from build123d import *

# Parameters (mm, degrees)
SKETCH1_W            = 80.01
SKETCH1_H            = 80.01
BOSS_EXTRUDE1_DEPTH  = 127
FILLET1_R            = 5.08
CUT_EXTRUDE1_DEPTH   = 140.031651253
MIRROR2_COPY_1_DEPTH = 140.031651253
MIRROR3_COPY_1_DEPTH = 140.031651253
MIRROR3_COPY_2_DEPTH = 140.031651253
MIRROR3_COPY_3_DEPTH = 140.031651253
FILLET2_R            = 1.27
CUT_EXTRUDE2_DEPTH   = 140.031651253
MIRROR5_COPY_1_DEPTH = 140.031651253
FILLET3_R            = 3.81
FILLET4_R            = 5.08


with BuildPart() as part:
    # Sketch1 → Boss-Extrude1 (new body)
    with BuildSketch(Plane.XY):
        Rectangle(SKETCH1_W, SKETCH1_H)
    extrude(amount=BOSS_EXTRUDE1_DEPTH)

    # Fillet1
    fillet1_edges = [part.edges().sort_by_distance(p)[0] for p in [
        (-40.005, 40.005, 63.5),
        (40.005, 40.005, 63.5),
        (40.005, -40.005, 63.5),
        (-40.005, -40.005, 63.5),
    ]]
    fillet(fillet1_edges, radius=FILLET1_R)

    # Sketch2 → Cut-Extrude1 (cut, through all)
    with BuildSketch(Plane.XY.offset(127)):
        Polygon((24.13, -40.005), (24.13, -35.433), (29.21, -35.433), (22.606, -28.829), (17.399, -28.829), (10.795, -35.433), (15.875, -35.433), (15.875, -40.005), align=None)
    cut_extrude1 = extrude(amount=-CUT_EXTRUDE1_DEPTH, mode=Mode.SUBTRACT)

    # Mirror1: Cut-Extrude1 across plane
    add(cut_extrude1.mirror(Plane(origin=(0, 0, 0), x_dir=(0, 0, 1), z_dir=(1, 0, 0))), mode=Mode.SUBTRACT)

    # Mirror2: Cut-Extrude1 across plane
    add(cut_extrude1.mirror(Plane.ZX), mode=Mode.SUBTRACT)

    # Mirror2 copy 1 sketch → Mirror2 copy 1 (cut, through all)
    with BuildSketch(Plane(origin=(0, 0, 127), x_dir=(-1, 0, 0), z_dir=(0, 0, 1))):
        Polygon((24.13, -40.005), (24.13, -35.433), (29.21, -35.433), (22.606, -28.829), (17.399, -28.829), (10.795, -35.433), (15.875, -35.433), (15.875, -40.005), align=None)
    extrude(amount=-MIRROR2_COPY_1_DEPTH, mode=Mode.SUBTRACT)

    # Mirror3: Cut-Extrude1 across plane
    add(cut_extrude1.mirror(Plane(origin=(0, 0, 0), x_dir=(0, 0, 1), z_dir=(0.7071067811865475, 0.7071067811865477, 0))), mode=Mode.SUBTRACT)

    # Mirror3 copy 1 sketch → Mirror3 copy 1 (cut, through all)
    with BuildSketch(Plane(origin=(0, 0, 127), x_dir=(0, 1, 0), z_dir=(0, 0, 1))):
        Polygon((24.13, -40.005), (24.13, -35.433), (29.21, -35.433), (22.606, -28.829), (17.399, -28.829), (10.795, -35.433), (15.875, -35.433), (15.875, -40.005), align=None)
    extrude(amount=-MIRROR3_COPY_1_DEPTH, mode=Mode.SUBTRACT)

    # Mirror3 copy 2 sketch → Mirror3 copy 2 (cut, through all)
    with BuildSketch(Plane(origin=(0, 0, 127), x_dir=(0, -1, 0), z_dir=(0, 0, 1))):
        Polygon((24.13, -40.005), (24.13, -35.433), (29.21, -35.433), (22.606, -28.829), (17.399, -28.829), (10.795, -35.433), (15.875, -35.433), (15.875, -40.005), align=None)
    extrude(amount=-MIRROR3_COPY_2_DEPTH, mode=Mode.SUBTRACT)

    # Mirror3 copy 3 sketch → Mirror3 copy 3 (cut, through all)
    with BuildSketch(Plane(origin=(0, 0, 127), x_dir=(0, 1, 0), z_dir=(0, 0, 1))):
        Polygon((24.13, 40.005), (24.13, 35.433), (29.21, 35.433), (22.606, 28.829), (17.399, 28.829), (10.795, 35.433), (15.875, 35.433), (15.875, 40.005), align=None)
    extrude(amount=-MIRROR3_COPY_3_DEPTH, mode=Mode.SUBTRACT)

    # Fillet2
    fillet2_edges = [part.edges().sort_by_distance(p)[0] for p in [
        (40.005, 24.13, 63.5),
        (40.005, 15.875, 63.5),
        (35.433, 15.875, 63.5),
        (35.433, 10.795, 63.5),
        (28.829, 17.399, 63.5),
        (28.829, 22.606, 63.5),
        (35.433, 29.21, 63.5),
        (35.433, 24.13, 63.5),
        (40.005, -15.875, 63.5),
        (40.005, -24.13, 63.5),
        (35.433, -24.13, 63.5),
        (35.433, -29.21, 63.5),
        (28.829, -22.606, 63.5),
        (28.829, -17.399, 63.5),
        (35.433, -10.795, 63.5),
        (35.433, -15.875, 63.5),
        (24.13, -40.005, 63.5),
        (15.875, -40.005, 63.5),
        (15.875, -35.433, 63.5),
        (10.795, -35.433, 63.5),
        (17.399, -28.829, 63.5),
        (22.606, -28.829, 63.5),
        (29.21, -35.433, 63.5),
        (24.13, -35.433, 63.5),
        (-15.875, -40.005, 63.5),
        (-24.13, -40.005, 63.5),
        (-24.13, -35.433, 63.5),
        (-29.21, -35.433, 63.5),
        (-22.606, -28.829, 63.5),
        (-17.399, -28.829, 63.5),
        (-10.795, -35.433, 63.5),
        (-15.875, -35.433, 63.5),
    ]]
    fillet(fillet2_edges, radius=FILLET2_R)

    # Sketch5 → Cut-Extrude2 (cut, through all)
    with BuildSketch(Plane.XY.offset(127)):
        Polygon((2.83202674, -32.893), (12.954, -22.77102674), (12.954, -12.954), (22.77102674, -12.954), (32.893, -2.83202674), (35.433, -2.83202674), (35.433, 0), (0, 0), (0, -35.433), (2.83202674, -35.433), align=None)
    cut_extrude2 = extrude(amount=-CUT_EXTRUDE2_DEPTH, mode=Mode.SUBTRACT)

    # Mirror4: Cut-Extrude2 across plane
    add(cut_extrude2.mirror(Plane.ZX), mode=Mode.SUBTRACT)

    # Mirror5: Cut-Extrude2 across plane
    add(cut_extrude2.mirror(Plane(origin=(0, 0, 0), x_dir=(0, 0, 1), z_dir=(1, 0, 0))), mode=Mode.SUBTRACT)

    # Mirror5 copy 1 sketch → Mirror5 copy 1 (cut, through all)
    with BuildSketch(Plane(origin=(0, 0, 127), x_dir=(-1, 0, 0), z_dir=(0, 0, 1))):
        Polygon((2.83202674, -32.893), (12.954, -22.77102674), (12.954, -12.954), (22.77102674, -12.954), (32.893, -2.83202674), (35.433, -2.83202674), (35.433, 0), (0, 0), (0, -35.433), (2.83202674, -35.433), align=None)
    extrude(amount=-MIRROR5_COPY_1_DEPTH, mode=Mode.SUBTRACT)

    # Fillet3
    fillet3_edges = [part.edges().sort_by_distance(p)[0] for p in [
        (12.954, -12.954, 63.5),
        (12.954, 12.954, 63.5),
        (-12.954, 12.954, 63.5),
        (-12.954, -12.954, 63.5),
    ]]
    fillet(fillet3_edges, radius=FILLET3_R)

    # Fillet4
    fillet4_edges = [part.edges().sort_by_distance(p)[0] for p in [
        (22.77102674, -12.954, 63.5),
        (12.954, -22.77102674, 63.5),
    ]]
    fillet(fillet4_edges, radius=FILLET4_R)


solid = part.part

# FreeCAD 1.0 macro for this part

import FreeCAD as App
import Part
import Sketcher
from FreeCAD import Vector
Q = App.Units.Quantity


def edges_at(feature, points):
    """Names of the edges that pass closest to the given points."""
    edges = feature.Shape.Edges
    near = lambda p: min(range(len(edges)), key=lambda i: edges[i].distToShape(Part.Vertex(*p))[0])
    return sorted({f"Edge{near(p) + 1}" for p in points})

doc = App.newDocument("Part")
body = doc.addObject("PartDesign::Body", "Body")

# Sketch on XY plane
sketch1 = doc.addObject("Sketcher::SketchObject", "Sketch")
body.addObject(sketch1)
sketch1.AttachmentSupport = (doc.XY_Plane, [""])
sketch1.MapMode = "FlatFace"
sketch1.addGeometry(Part.LineSegment(Vector(-40.005, 40.005, 0), Vector(-40.005, -40.005, 0)), False)
sketch1.addGeometry(Part.LineSegment(Vector(-40.005, -40.005, 0), Vector(40.005, -40.005, 0)), False)
sketch1.addGeometry(Part.LineSegment(Vector(40.005, -40.005, 0), Vector(40.005, 40.005, 0)), False)
sketch1.addGeometry(Part.LineSegment(Vector(40.005, 40.005, 0), Vector(-40.005, 40.005, 0)), False)
sketch1.addConstraint(Sketcher.Constraint("Coincident", 0, 2, 1, 1))
sketch1.addConstraint(Sketcher.Constraint("Coincident", 1, 2, 2, 1))
sketch1.addConstraint(Sketcher.Constraint("Coincident", 2, 2, 3, 1))
sketch1.addConstraint(Sketcher.Constraint("Coincident", 3, 2, 0, 1))
sketch1.addConstraint(Sketcher.Constraint("Vertical", 0))
sketch1.addConstraint(Sketcher.Constraint("Horizontal", 1))
sketch1.addConstraint(Sketcher.Constraint("Vertical", 2))
sketch1.addConstraint(Sketcher.Constraint("Horizontal", 3))
sketch1.addConstraint(Sketcher.Constraint("Symmetric", 0, 2, 2, 2, -1, 1))
sketch1.addConstraint(Sketcher.Constraint("Equal", 3, 0))
sketch1.addConstraint(Sketcher.Constraint("DistanceX", 1, 1, 1, 2, Q("3.15 in")))
pad1 = doc.addObject("PartDesign::Pad", "Pad")
body.addObject(pad1)
pad1.Profile = sketch1
pad1.Length = Q("5 in")
doc.recompute()

fillet = doc.addObject("PartDesign::Fillet", "Fillet")
body.addObject(fillet)
fillet.Base = (pad1, edges_at(pad1, [
    (-40.005, 40.005, 63.5),
    (40.005, 40.005, 63.5),
    (40.005, -40.005, 63.5),
    (-40.005, -40.005, 63.5),
]))
fillet.Radius = Q("0.2 in")

# Sketch on XY plane
sketch2 = doc.addObject("Sketcher::SketchObject", "Sketch001")
body.addObject(sketch2)
sketch2.AttachmentSupport = (doc.XY_Plane, [""])
sketch2.MapMode = "FlatFace"
sketch2.AttachmentOffset = App.Placement(Vector(0, 0, 5 * 25.4), App.Rotation())
sketch2.addGeometry(Part.LineSegment(Vector(24.13, -40.005, 0), Vector(24.13, -35.433, 0)), False)
sketch2.addGeometry(Part.LineSegment(Vector(24.13, -35.433, 0), Vector(29.21, -35.433, 0)), False)
sketch2.addGeometry(Part.LineSegment(Vector(29.21, -35.433, 0), Vector(22.606, -28.829, 0)), False)
sketch2.addGeometry(Part.LineSegment(Vector(22.606, -28.829, 0), Vector(17.399, -28.829, 0)), False)
sketch2.addGeometry(Part.LineSegment(Vector(17.399, -28.829, 0), Vector(10.795, -35.433, 0)), False)
sketch2.addGeometry(Part.LineSegment(Vector(10.795, -35.433, 0), Vector(15.875, -35.433, 0)), False)
sketch2.addGeometry(Part.LineSegment(Vector(15.875, -35.433, 0), Vector(15.875, -40.005, 0)), False)
sketch2.addGeometry(Part.LineSegment(Vector(15.875, -40.005, 0), Vector(24.13, -40.005, 0)), False)
sketch2.addConstraint(Sketcher.Constraint("Coincident", 0, 2, 1, 1))
sketch2.addConstraint(Sketcher.Constraint("Coincident", 1, 2, 2, 1))
sketch2.addConstraint(Sketcher.Constraint("Coincident", 2, 2, 3, 1))
sketch2.addConstraint(Sketcher.Constraint("Coincident", 3, 2, 4, 1))
sketch2.addConstraint(Sketcher.Constraint("Coincident", 4, 2, 5, 1))
sketch2.addConstraint(Sketcher.Constraint("Coincident", 5, 2, 6, 1))
sketch2.addConstraint(Sketcher.Constraint("Coincident", 6, 2, 7, 1))
sketch2.addConstraint(Sketcher.Constraint("Coincident", 7, 2, 0, 1))
sketch2.addConstraint(Sketcher.Constraint("Vertical", 0))
sketch2.addConstraint(Sketcher.Constraint("Horizontal", 1))
sketch2.addConstraint(Sketcher.Constraint("Horizontal", 3))
sketch2.addConstraint(Sketcher.Constraint("Horizontal", 5))
sketch2.addConstraint(Sketcher.Constraint("Vertical", 6))
sketch2.addConstraint(Sketcher.Constraint("Horizontal", 7))
sketch2.addConstraint(Sketcher.Constraint("Perpendicular", 2, 4))
sketch2.addConstraint(Sketcher.Constraint("Horizontal", 1, 2, 4, 2))
sketch2.addConstraint(Sketcher.Constraint("Equal", 1, 5))
sketch2.addConstraint(Sketcher.Constraint("Equal", 2, 4))
sketch2.addConstraint(Sketcher.Constraint("DistanceX", 1, 1, 1, 2, Q("0.2 in")))
sketch2.addConstraint(Sketcher.Constraint("DistanceY", 0, 1, 0, 2, Q("0.18 in")))
sketch2.addConstraint(Sketcher.Constraint("DistanceX", 3, 2, 3, 1, Q("0.205 in")))
sketch2.addConstraint(Sketcher.Constraint("DistanceX", 7, 1, 7, 2, Q("0.325 in")))
sketch2.addConstraint(Sketcher.Constraint("DistanceX", -1, 1, 0, 2, Q("0.95 in")))
sketch2.addConstraint(Sketcher.Constraint("DistanceY", 0, 2, -1, 1, Q("1.395 in")))
pocket1 = doc.addObject("PartDesign::Pocket", "Pocket")
body.addObject(pocket1)
pocket1.Profile = sketch2
pocket1.Type = "ThroughAll"
doc.recompute()

mirrored = doc.addObject("PartDesign::Mirrored", "Mirrored")
body.addObject(mirrored)
mirrored.Originals = [pocket1]
mirrored.MirrorPlane = (doc.YZ_Plane, [""])
body.Tip = mirrored
doc.recompute()

mirrored2 = doc.addObject("PartDesign::Mirrored", "Mirrored001")
body.addObject(mirrored2)
mirrored2.Originals = [pocket1]
mirrored2.MirrorPlane = (doc.XZ_Plane, [""])
body.Tip = mirrored2

# Sketch on XY plane
sketch3 = doc.addObject("Sketcher::SketchObject", "Sketch002")
body.addObject(sketch3)
sketch3.AttachmentSupport = (doc.XY_Plane, [""])
sketch3.MapMode = "FlatFace"
sketch3.AttachmentOffset = App.Placement(Vector(0, 0, 5 * 25.4), App.Rotation())
sketch3.addGeometry(Part.LineSegment(Vector(-24.13, 40.005, 0), Vector(-24.13, 35.433, 0)), False)
sketch3.addGeometry(Part.LineSegment(Vector(-24.13, 35.433, 0), Vector(-29.21, 35.433, 0)), False)
sketch3.addGeometry(Part.LineSegment(Vector(-29.21, 35.433, 0), Vector(-22.606, 28.829, 0)), False)
sketch3.addGeometry(Part.LineSegment(Vector(-22.606, 28.829, 0), Vector(-17.399, 28.829, 0)), False)
sketch3.addGeometry(Part.LineSegment(Vector(-17.399, 28.829, 0), Vector(-10.795, 35.433, 0)), False)
sketch3.addGeometry(Part.LineSegment(Vector(-10.795, 35.433, 0), Vector(-15.875, 35.433, 0)), False)
sketch3.addGeometry(Part.LineSegment(Vector(-15.875, 35.433, 0), Vector(-15.875, 40.005, 0)), False)
sketch3.addGeometry(Part.LineSegment(Vector(-15.875, 40.005, 0), Vector(-24.13, 40.005, 0)), False)
sketch3.addConstraint(Sketcher.Constraint("Coincident", 0, 2, 1, 1))
sketch3.addConstraint(Sketcher.Constraint("Coincident", 1, 2, 2, 1))
sketch3.addConstraint(Sketcher.Constraint("Coincident", 2, 2, 3, 1))
sketch3.addConstraint(Sketcher.Constraint("Coincident", 3, 2, 4, 1))
sketch3.addConstraint(Sketcher.Constraint("Coincident", 4, 2, 5, 1))
sketch3.addConstraint(Sketcher.Constraint("Coincident", 5, 2, 6, 1))
sketch3.addConstraint(Sketcher.Constraint("Coincident", 6, 2, 7, 1))
sketch3.addConstraint(Sketcher.Constraint("Coincident", 7, 2, 0, 1))
sketch3.addConstraint(Sketcher.Constraint("Vertical", 0))
sketch3.addConstraint(Sketcher.Constraint("Horizontal", 1))
sketch3.addConstraint(Sketcher.Constraint("Horizontal", 3))
sketch3.addConstraint(Sketcher.Constraint("Horizontal", 5))
sketch3.addConstraint(Sketcher.Constraint("Vertical", 6))
sketch3.addConstraint(Sketcher.Constraint("Horizontal", 7))
sketch3.addConstraint(Sketcher.Constraint("Perpendicular", 2, 4))
sketch3.addConstraint(Sketcher.Constraint("Horizontal", 1, 2, 4, 2))
sketch3.addConstraint(Sketcher.Constraint("Equal", 1, 5))
sketch3.addConstraint(Sketcher.Constraint("Equal", 2, 4))
sketch3.addConstraint(Sketcher.Constraint("DistanceX", 1, 2, 1, 1, Q("0.2 in")))
sketch3.addConstraint(Sketcher.Constraint("DistanceY", 0, 2, 0, 1, Q("0.18 in")))
sketch3.addConstraint(Sketcher.Constraint("DistanceX", 3, 1, 3, 2, Q("0.205 in")))
sketch3.addConstraint(Sketcher.Constraint("DistanceX", 7, 2, 7, 1, Q("0.325 in")))
sketch3.addConstraint(Sketcher.Constraint("DistanceX", 0, 2, -1, 1, Q("0.95 in")))
sketch3.addConstraint(Sketcher.Constraint("DistanceY", -1, 1, 0, 2, Q("1.395 in")))
pocket2 = doc.addObject("PartDesign::Pocket", "Pocket001")
body.addObject(pocket2)
pocket2.Profile = sketch3
pocket2.Type = "ThroughAll"
doc.recompute()

datumplane = doc.addObject("PartDesign::Plane", "DatumPlane")
body.addObject(datumplane)
datumplane.Placement = App.Placement(Vector(0, 0, 0), App.Rotation(Vector(0.707106781, -0.707106781, 0), Vector(0, 0, -1), Vector(0.707106781, 0.707106781, 0), "ZXY"))
mirrored3 = doc.addObject("PartDesign::Mirrored", "Mirrored002")
body.addObject(mirrored3)
mirrored3.Originals = [pocket1]
mirrored3.MirrorPlane = (datumplane, [""])
body.Tip = mirrored3

# Sketch on XY plane
sketch4 = doc.addObject("Sketcher::SketchObject", "Sketch003")
body.addObject(sketch4)
sketch4.AttachmentSupport = (doc.XY_Plane, [""])
sketch4.MapMode = "FlatFace"
sketch4.AttachmentOffset = App.Placement(Vector(0, 0, 5 * 25.4), App.Rotation())
sketch4.addGeometry(Part.LineSegment(Vector(40.005, 24.13, 0), Vector(35.433, 24.13, 0)), False)
sketch4.addGeometry(Part.LineSegment(Vector(35.433, 24.13, 0), Vector(35.433, 29.21, 0)), False)
sketch4.addGeometry(Part.LineSegment(Vector(35.433, 29.21, 0), Vector(28.829, 22.606, 0)), False)
sketch4.addGeometry(Part.LineSegment(Vector(28.829, 22.606, 0), Vector(28.829, 17.399, 0)), False)
sketch4.addGeometry(Part.LineSegment(Vector(28.829, 17.399, 0), Vector(35.433, 10.795, 0)), False)
sketch4.addGeometry(Part.LineSegment(Vector(35.433, 10.795, 0), Vector(35.433, 15.875, 0)), False)
sketch4.addGeometry(Part.LineSegment(Vector(35.433, 15.875, 0), Vector(40.005, 15.875, 0)), False)
sketch4.addGeometry(Part.LineSegment(Vector(40.005, 15.875, 0), Vector(40.005, 24.13, 0)), False)
sketch4.addConstraint(Sketcher.Constraint("Coincident", 0, 2, 1, 1))
sketch4.addConstraint(Sketcher.Constraint("Coincident", 1, 2, 2, 1))
sketch4.addConstraint(Sketcher.Constraint("Coincident", 2, 2, 3, 1))
sketch4.addConstraint(Sketcher.Constraint("Coincident", 3, 2, 4, 1))
sketch4.addConstraint(Sketcher.Constraint("Coincident", 4, 2, 5, 1))
sketch4.addConstraint(Sketcher.Constraint("Coincident", 5, 2, 6, 1))
sketch4.addConstraint(Sketcher.Constraint("Coincident", 6, 2, 7, 1))
sketch4.addConstraint(Sketcher.Constraint("Coincident", 7, 2, 0, 1))
sketch4.addConstraint(Sketcher.Constraint("Horizontal", 0))
sketch4.addConstraint(Sketcher.Constraint("Vertical", 1))
sketch4.addConstraint(Sketcher.Constraint("Vertical", 3))
sketch4.addConstraint(Sketcher.Constraint("Vertical", 5))
sketch4.addConstraint(Sketcher.Constraint("Horizontal", 6))
sketch4.addConstraint(Sketcher.Constraint("Vertical", 7))
sketch4.addConstraint(Sketcher.Constraint("Perpendicular", 2, 4))
sketch4.addConstraint(Sketcher.Constraint("Vertical", 1, 2, 4, 2))
sketch4.addConstraint(Sketcher.Constraint("Equal", 1, 5))
sketch4.addConstraint(Sketcher.Constraint("Equal", 2, 4))
sketch4.addConstraint(Sketcher.Constraint("DistanceY", 1, 1, 1, 2, Q("0.2 in")))
sketch4.addConstraint(Sketcher.Constraint("DistanceX", 0, 2, 0, 1, Q("0.18 in")))
sketch4.addConstraint(Sketcher.Constraint("DistanceY", 3, 2, 3, 1, Q("0.205 in")))
sketch4.addConstraint(Sketcher.Constraint("DistanceY", 7, 1, 7, 2, Q("0.325 in")))
sketch4.addConstraint(Sketcher.Constraint("DistanceY", -1, 1, 0, 2, Q("0.95 in")))
sketch4.addConstraint(Sketcher.Constraint("DistanceX", -1, 1, 0, 2, Q("1.395 in")))
pocket3 = doc.addObject("PartDesign::Pocket", "Pocket002")
body.addObject(pocket3)
pocket3.Profile = sketch4
pocket3.Type = "ThroughAll"

# Sketch on XY plane
sketch5 = doc.addObject("Sketcher::SketchObject", "Sketch004")
body.addObject(sketch5)
sketch5.AttachmentSupport = (doc.XY_Plane, [""])
sketch5.MapMode = "FlatFace"
sketch5.AttachmentOffset = App.Placement(Vector(0, 0, 5 * 25.4), App.Rotation())
sketch5.addGeometry(Part.LineSegment(Vector(-40.005, -24.13, 0), Vector(-35.433, -24.13, 0)), False)
sketch5.addGeometry(Part.LineSegment(Vector(-35.433, -24.13, 0), Vector(-35.433, -29.21, 0)), False)
sketch5.addGeometry(Part.LineSegment(Vector(-35.433, -29.21, 0), Vector(-28.829, -22.606, 0)), False)
sketch5.addGeometry(Part.LineSegment(Vector(-28.829, -22.606, 0), Vector(-28.829, -17.399, 0)), False)
sketch5.addGeometry(Part.LineSegment(Vector(-28.829, -17.399, 0), Vector(-35.433, -10.795, 0)), False)
sketch5.addGeometry(Part.LineSegment(Vector(-35.433, -10.795, 0), Vector(-35.433, -15.875, 0)), False)
sketch5.addGeometry(Part.LineSegment(Vector(-35.433, -15.875, 0), Vector(-40.005, -15.875, 0)), False)
sketch5.addGeometry(Part.LineSegment(Vector(-40.005, -15.875, 0), Vector(-40.005, -24.13, 0)), False)
sketch5.addConstraint(Sketcher.Constraint("Coincident", 0, 2, 1, 1))
sketch5.addConstraint(Sketcher.Constraint("Coincident", 1, 2, 2, 1))
sketch5.addConstraint(Sketcher.Constraint("Coincident", 2, 2, 3, 1))
sketch5.addConstraint(Sketcher.Constraint("Coincident", 3, 2, 4, 1))
sketch5.addConstraint(Sketcher.Constraint("Coincident", 4, 2, 5, 1))
sketch5.addConstraint(Sketcher.Constraint("Coincident", 5, 2, 6, 1))
sketch5.addConstraint(Sketcher.Constraint("Coincident", 6, 2, 7, 1))
sketch5.addConstraint(Sketcher.Constraint("Coincident", 7, 2, 0, 1))
sketch5.addConstraint(Sketcher.Constraint("Horizontal", 0))
sketch5.addConstraint(Sketcher.Constraint("Vertical", 1))
sketch5.addConstraint(Sketcher.Constraint("Vertical", 3))
sketch5.addConstraint(Sketcher.Constraint("Vertical", 5))
sketch5.addConstraint(Sketcher.Constraint("Horizontal", 6))
sketch5.addConstraint(Sketcher.Constraint("Vertical", 7))
sketch5.addConstraint(Sketcher.Constraint("Perpendicular", 2, 4))
sketch5.addConstraint(Sketcher.Constraint("Vertical", 1, 2, 4, 2))
sketch5.addConstraint(Sketcher.Constraint("Equal", 1, 5))
sketch5.addConstraint(Sketcher.Constraint("Equal", 2, 4))
sketch5.addConstraint(Sketcher.Constraint("DistanceY", 1, 2, 1, 1, Q("0.2 in")))
sketch5.addConstraint(Sketcher.Constraint("DistanceX", 0, 1, 0, 2, Q("0.18 in")))
sketch5.addConstraint(Sketcher.Constraint("DistanceY", 3, 1, 3, 2, Q("0.205 in")))
sketch5.addConstraint(Sketcher.Constraint("DistanceY", 7, 2, 7, 1, Q("0.325 in")))
sketch5.addConstraint(Sketcher.Constraint("DistanceY", 0, 2, -1, 1, Q("0.95 in")))
sketch5.addConstraint(Sketcher.Constraint("DistanceX", 0, 2, -1, 1, Q("1.395 in")))
pocket4 = doc.addObject("PartDesign::Pocket", "Pocket003")
body.addObject(pocket4)
pocket4.Profile = sketch5
pocket4.Type = "ThroughAll"

# Sketch on XY plane
sketch6 = doc.addObject("Sketcher::SketchObject", "Sketch005")
body.addObject(sketch6)
sketch6.AttachmentSupport = (doc.XY_Plane, [""])
sketch6.MapMode = "FlatFace"
sketch6.AttachmentOffset = App.Placement(Vector(0, 0, 5 * 25.4), App.Rotation())
sketch6.addGeometry(Part.LineSegment(Vector(-35.433, 24.13, 0), Vector(-40.005, 24.13, 0)), False)
sketch6.addGeometry(Part.LineSegment(Vector(-40.005, 24.13, 0), Vector(-40.005, 15.875, 0)), False)
sketch6.addGeometry(Part.LineSegment(Vector(-40.005, 15.875, 0), Vector(-35.433, 15.875, 0)), False)
sketch6.addGeometry(Part.LineSegment(Vector(-35.433, 15.875, 0), Vector(-35.433, 10.795, 0)), False)
sketch6.addGeometry(Part.LineSegment(Vector(-35.433, 10.795, 0), Vector(-28.829, 17.399, 0)), False)
sketch6.addGeometry(Part.LineSegment(Vector(-28.829, 17.399, 0), Vector(-28.829, 22.606, 0)), False)
sketch6.addGeometry(Part.LineSegment(Vector(-28.829, 22.606, 0), Vector(-35.433, 29.21, 0)), False)
sketch6.addGeometry(Part.LineSegment(Vector(-35.433, 29.21, 0), Vector(-35.433, 24.13, 0)), False)
sketch6.addConstraint(Sketcher.Constraint("Coincident", 0, 2, 1, 1))
sketch6.addConstraint(Sketcher.Constraint("Coincident", 1, 2, 2, 1))
sketch6.addConstraint(Sketcher.Constraint("Coincident", 2, 2, 3, 1))
sketch6.addConstraint(Sketcher.Constraint("Coincident", 3, 2, 4, 1))
sketch6.addConstraint(Sketcher.Constraint("Coincident", 4, 2, 5, 1))
sketch6.addConstraint(Sketcher.Constraint("Coincident", 5, 2, 6, 1))
sketch6.addConstraint(Sketcher.Constraint("Coincident", 6, 2, 7, 1))
sketch6.addConstraint(Sketcher.Constraint("Coincident", 7, 2, 0, 1))
sketch6.addConstraint(Sketcher.Constraint("Horizontal", 0))
sketch6.addConstraint(Sketcher.Constraint("Vertical", 1))
sketch6.addConstraint(Sketcher.Constraint("Horizontal", 2))
sketch6.addConstraint(Sketcher.Constraint("Vertical", 3))
sketch6.addConstraint(Sketcher.Constraint("Vertical", 5))
sketch6.addConstraint(Sketcher.Constraint("Vertical", 7))
sketch6.addConstraint(Sketcher.Constraint("Perpendicular", 4, 6))
sketch6.addConstraint(Sketcher.Constraint("Vertical", 3, 2, 6, 2))
sketch6.addConstraint(Sketcher.Constraint("Equal", 3, 7))
sketch6.addConstraint(Sketcher.Constraint("Equal", 4, 6))
sketch6.addConstraint(Sketcher.Constraint("DistanceY", 3, 2, 3, 1, Q("0.2 in")))
sketch6.addConstraint(Sketcher.Constraint("DistanceX", 0, 2, 0, 1, Q("0.18 in")))
sketch6.addConstraint(Sketcher.Constraint("DistanceY", 1, 2, 1, 1, Q("0.325 in")))
sketch6.addConstraint(Sketcher.Constraint("DistanceY", 5, 1, 5, 2, Q("0.205 in")))
sketch6.addConstraint(Sketcher.Constraint("DistanceY", -1, 1, 0, 2, Q("0.95 in")))
sketch6.addConstraint(Sketcher.Constraint("DistanceX", 0, 2, -1, 1, Q("1.575 in")))
pocket5 = doc.addObject("PartDesign::Pocket", "Pocket004")
body.addObject(pocket5)
pocket5.Profile = sketch6
pocket5.Type = "ThroughAll"
doc.recompute()

fillet2 = doc.addObject("PartDesign::Fillet", "Fillet001")
body.addObject(fillet2)
fillet2.Base = (pocket5, edges_at(pocket5, [
    (40.005, 24.13, 63.5),
    (40.005, 15.875, 63.5),
    (35.433, 15.875, 63.5),
    (35.433, 10.795, 63.5),
    (28.829, 17.399, 63.5),
    (28.829, 22.606, 63.5),
    (35.433, 29.21, 63.5),
    (35.433, 24.13, 63.5),
    (40.005, -15.875, 63.5),
    (40.005, -24.13, 63.5),
    (35.433, -24.13, 63.5),
    (35.433, -29.21, 63.5),
    (28.829, -22.606, 63.5),
    (28.829, -17.399, 63.5),
    (35.433, -10.795, 63.5),
    (35.433, -15.875, 63.5),
    (24.13, -40.005, 63.5),
    (15.875, -40.005, 63.5),
    (15.875, -35.433, 63.5),
    (10.795, -35.433, 63.5),
    (17.399, -28.829, 63.5),
    (22.606, -28.829, 63.5),
    (29.21, -35.433, 63.5),
    (24.13, -35.433, 63.5),
    (-15.875, -40.005, 63.5),
    (-24.13, -40.005, 63.5),
    (-24.13, -35.433, 63.5),
    (-29.21, -35.433, 63.5),
    (-22.606, -28.829, 63.5),
    (-17.399, -28.829, 63.5),
    (-10.795, -35.433, 63.5),
    (-15.875, -35.433, 63.5),
]))
fillet2.Radius = Q("0.05 in")

# Sketch on XY plane
sketch7 = doc.addObject("Sketcher::SketchObject", "Sketch006")
body.addObject(sketch7)
sketch7.AttachmentSupport = (doc.XY_Plane, [""])
sketch7.MapMode = "FlatFace"
sketch7.AttachmentOffset = App.Placement(Vector(0, 0, 5 * 25.4), App.Rotation())
sketch7.addGeometry(Part.LineSegment(Vector(2.832027, -32.893, 0), Vector(12.954, -22.771027, 0)), False)
sketch7.addGeometry(Part.LineSegment(Vector(12.954, -22.771027, 0), Vector(12.954, -12.954, 0)), False)
sketch7.addGeometry(Part.LineSegment(Vector(12.954, -12.954, 0), Vector(22.771027, -12.954, 0)), False)
sketch7.addGeometry(Part.LineSegment(Vector(22.771027, -12.954, 0), Vector(32.893, -2.832027, 0)), False)
sketch7.addGeometry(Part.LineSegment(Vector(32.893, -2.832027, 0), Vector(35.433, -2.832027, 0)), False)
sketch7.addGeometry(Part.LineSegment(Vector(35.433, -2.832027, 0), Vector(35.433, 0, 0)), False)
sketch7.addGeometry(Part.LineSegment(Vector(35.433, 0, 0), Vector(0, 0, 0)), False)
sketch7.addGeometry(Part.LineSegment(Vector(0, 0, 0), Vector(0, -35.433, 0)), False)
sketch7.addGeometry(Part.LineSegment(Vector(0, -35.433, 0), Vector(2.832027, -35.433, 0)), False)
sketch7.addGeometry(Part.LineSegment(Vector(2.832027, -35.433, 0), Vector(2.832027, -32.893, 0)), False)
sketch7.addConstraint(Sketcher.Constraint("Coincident", 0, 2, 1, 1))
sketch7.addConstraint(Sketcher.Constraint("Coincident", 1, 2, 2, 1))
sketch7.addConstraint(Sketcher.Constraint("Coincident", 2, 2, 3, 1))
sketch7.addConstraint(Sketcher.Constraint("Coincident", 3, 2, 4, 1))
sketch7.addConstraint(Sketcher.Constraint("Coincident", 4, 2, 5, 1))
sketch7.addConstraint(Sketcher.Constraint("Coincident", 5, 2, 6, 1))
sketch7.addConstraint(Sketcher.Constraint("Coincident", 6, 2, 7, 1))
sketch7.addConstraint(Sketcher.Constraint("Coincident", 7, 2, 8, 1))
sketch7.addConstraint(Sketcher.Constraint("Coincident", 8, 2, 9, 1))
sketch7.addConstraint(Sketcher.Constraint("Coincident", 9, 2, 0, 1))
sketch7.addConstraint(Sketcher.Constraint("Vertical", 1))
sketch7.addConstraint(Sketcher.Constraint("Horizontal", 2))
sketch7.addConstraint(Sketcher.Constraint("Horizontal", 4))
sketch7.addConstraint(Sketcher.Constraint("Vertical", 5))
sketch7.addConstraint(Sketcher.Constraint("Horizontal", 6))
sketch7.addConstraint(Sketcher.Constraint("Vertical", 7))
sketch7.addConstraint(Sketcher.Constraint("Horizontal", 8))
sketch7.addConstraint(Sketcher.Constraint("Vertical", 9))
sketch7.addConstraint(Sketcher.Constraint("Coincident", 6, 2, -1, 1))
sketch7.addConstraint(Sketcher.Constraint("Parallel", 0, 3))
sketch7.addConstraint(Sketcher.Constraint("Equal", 2, 1))
sketch7.addConstraint(Sketcher.Constraint("Equal", 8, 5))
sketch7.addConstraint(Sketcher.Constraint("Equal", 6, 7))
sketch7.addConstraint(Sketcher.Constraint("Equal", 4, 9))
sketch7.addConstraint(Sketcher.Constraint("Equal", 0, 3))
sketch7.addConstraint(Sketcher.Constraint("DistanceX", 4, 1, 4, 2, Q("0.1 in")))
sketch7.addConstraint(Sketcher.Constraint("DistanceX", 6, 2, 6, 1, Q("1.395 in")))
sketch7.addConstraint(Sketcher.Constraint("DistanceX", -1, 1, 0, 2, Q("0.51 in")))
sketch7.addConstraint(Sketcher.Constraint("Distance", 0, Q("14.314632 mm")))
pocket6 = doc.addObject("PartDesign::Pocket", "Pocket005")
body.addObject(pocket6)
pocket6.Profile = sketch7
pocket6.Type = "ThroughAll"
doc.recompute()

mirrored4 = doc.addObject("PartDesign::Mirrored", "Mirrored003")
body.addObject(mirrored4)
mirrored4.Originals = [pocket6]
mirrored4.MirrorPlane = (doc.XZ_Plane, [""])
body.Tip = mirrored4
doc.recompute()

mirrored5 = doc.addObject("PartDesign::Mirrored", "Mirrored004")
body.addObject(mirrored5)
mirrored5.Originals = [pocket6]
mirrored5.MirrorPlane = (doc.YZ_Plane, [""])
body.Tip = mirrored5

# Sketch on XY plane
sketch8 = doc.addObject("Sketcher::SketchObject", "Sketch007")
body.addObject(sketch8)
sketch8.AttachmentSupport = (doc.XY_Plane, [""])
sketch8.MapMode = "FlatFace"
sketch8.AttachmentOffset = App.Placement(Vector(0, 0, 5 * 25.4), App.Rotation())
sketch8.addGeometry(Part.LineSegment(Vector(-2.832027, 32.893, 0), Vector(-12.954, 22.771027, 0)), False)
sketch8.addGeometry(Part.LineSegment(Vector(-12.954, 22.771027, 0), Vector(-12.954, 12.954, 0)), False)
sketch8.addGeometry(Part.LineSegment(Vector(-12.954, 12.954, 0), Vector(-22.771027, 12.954, 0)), False)
sketch8.addGeometry(Part.LineSegment(Vector(-22.771027, 12.954, 0), Vector(-32.893, 2.832027, 0)), False)
sketch8.addGeometry(Part.LineSegment(Vector(-32.893, 2.832027, 0), Vector(-35.433, 2.832027, 0)), False)
sketch8.addGeometry(Part.LineSegment(Vector(-35.433, 2.832027, 0), Vector(-35.433, 0, 0)), False)
sketch8.addGeometry(Part.LineSegment(Vector(-35.433, 0, 0), Vector(0, 0, 0)), False)
sketch8.addGeometry(Part.LineSegment(Vector(0, 0, 0), Vector(0, 35.433, 0)), False)
sketch8.addGeometry(Part.LineSegment(Vector(0, 35.433, 0), Vector(-2.832027, 35.433, 0)), False)
sketch8.addGeometry(Part.LineSegment(Vector(-2.832027, 35.433, 0), Vector(-2.832027, 32.893, 0)), False)
sketch8.addConstraint(Sketcher.Constraint("Coincident", 0, 2, 1, 1))
sketch8.addConstraint(Sketcher.Constraint("Coincident", 1, 2, 2, 1))
sketch8.addConstraint(Sketcher.Constraint("Coincident", 2, 2, 3, 1))
sketch8.addConstraint(Sketcher.Constraint("Coincident", 3, 2, 4, 1))
sketch8.addConstraint(Sketcher.Constraint("Coincident", 4, 2, 5, 1))
sketch8.addConstraint(Sketcher.Constraint("Coincident", 5, 2, 6, 1))
sketch8.addConstraint(Sketcher.Constraint("Coincident", 6, 2, 7, 1))
sketch8.addConstraint(Sketcher.Constraint("Coincident", 7, 2, 8, 1))
sketch8.addConstraint(Sketcher.Constraint("Coincident", 8, 2, 9, 1))
sketch8.addConstraint(Sketcher.Constraint("Coincident", 9, 2, 0, 1))
sketch8.addConstraint(Sketcher.Constraint("Vertical", 1))
sketch8.addConstraint(Sketcher.Constraint("Horizontal", 2))
sketch8.addConstraint(Sketcher.Constraint("Horizontal", 4))
sketch8.addConstraint(Sketcher.Constraint("Vertical", 5))
sketch8.addConstraint(Sketcher.Constraint("Horizontal", 6))
sketch8.addConstraint(Sketcher.Constraint("Vertical", 7))
sketch8.addConstraint(Sketcher.Constraint("Horizontal", 8))
sketch8.addConstraint(Sketcher.Constraint("Vertical", 9))
sketch8.addConstraint(Sketcher.Constraint("Coincident", 6, 2, -1, 1))
sketch8.addConstraint(Sketcher.Constraint("Parallel", 0, 3))
sketch8.addConstraint(Sketcher.Constraint("Equal", 2, 1))
sketch8.addConstraint(Sketcher.Constraint("Equal", 8, 5))
sketch8.addConstraint(Sketcher.Constraint("Equal", 6, 7))
sketch8.addConstraint(Sketcher.Constraint("Equal", 4, 9))
sketch8.addConstraint(Sketcher.Constraint("Equal", 0, 3))
sketch8.addConstraint(Sketcher.Constraint("DistanceX", 4, 2, 4, 1, Q("0.1 in")))
sketch8.addConstraint(Sketcher.Constraint("DistanceX", 6, 1, 6, 2, Q("1.395 in")))
sketch8.addConstraint(Sketcher.Constraint("DistanceX", 0, 2, -1, 1, Q("0.51 in")))
sketch8.addConstraint(Sketcher.Constraint("Distance", 0, Q("14.314632 mm")))
pocket7 = doc.addObject("PartDesign::Pocket", "Pocket006")
body.addObject(pocket7)
pocket7.Profile = sketch8
pocket7.Type = "ThroughAll"
doc.recompute()

fillet3 = doc.addObject("PartDesign::Fillet", "Fillet002")
body.addObject(fillet3)
fillet3.Base = (pocket7, edges_at(pocket7, [
    (12.954, -12.954, 63.5),
    (12.954, 12.954, 63.5),
    (-12.954, 12.954, 63.5),
    (-12.954, -12.954, 63.5),
]))
fillet3.Radius = Q("0.15 in")
doc.recompute()

fillet4 = doc.addObject("PartDesign::Fillet", "Fillet003")
body.addObject(fillet4)
fillet4.Base = (fillet3, edges_at(fillet3, [(22.771, -12.954, 63.5), (12.954, -22.771, 63.5)]))
fillet4.Radius = Q("0.2 in")

doc.recompute()
